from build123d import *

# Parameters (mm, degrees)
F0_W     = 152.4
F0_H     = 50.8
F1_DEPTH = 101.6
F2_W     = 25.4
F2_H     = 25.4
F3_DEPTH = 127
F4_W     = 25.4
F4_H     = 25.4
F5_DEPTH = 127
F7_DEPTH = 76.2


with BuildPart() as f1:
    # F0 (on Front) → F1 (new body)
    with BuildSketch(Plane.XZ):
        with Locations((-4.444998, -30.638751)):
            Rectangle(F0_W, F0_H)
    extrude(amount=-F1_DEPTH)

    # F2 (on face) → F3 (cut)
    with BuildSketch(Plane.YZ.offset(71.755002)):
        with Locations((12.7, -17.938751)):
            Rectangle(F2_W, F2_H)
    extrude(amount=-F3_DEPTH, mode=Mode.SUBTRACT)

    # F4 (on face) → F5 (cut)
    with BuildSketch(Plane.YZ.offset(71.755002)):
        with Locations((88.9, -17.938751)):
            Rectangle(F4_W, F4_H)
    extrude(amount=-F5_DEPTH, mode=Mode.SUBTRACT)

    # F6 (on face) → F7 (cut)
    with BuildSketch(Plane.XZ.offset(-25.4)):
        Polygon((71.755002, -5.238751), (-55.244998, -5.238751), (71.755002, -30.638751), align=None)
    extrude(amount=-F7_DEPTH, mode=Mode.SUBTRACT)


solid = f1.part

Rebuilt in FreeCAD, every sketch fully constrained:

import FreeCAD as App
import Part
import Sketcher
Q = App.Units.Quantity

doc = App.newDocument("Part")
body = doc.addObject("PartDesign::Body", "Body")

# Sketch on XZ plane
sketch1 = body.newObject("Sketcher::SketchObject", "Sketch")
sketch1.AttachmentSupport = (doc.getObject("XZ_Plane"), [""])
sketch1.MapMode = "FlatFace"
sketch1.addGeometry([
    Part.LineSegment(App.Vector(-81, -5, 0), App.Vector(-81, -56, 0)),
    Part.LineSegment(App.Vector(-81, -56, 0), App.Vector(72, -56, 0)),
    Part.LineSegment(App.Vector(72, -56, 0), App.Vector(72, -5, 0)),
    Part.LineSegment(App.Vector(72, -5, 0), App.Vector(-81, -5, 0)),
], False)
sketch1.addConstraint([
    Sketcher.Constraint("Coincident", 0, 2, 1, 1),
    Sketcher.Constraint("Coincident", 1, 2, 2, 1),
    Sketcher.Constraint("Coincident", 2, 2, 3, 1),
    Sketcher.Constraint("Coincident", 3, 2, 0, 1),
    Sketcher.Constraint("Vertical", 0),
    Sketcher.Constraint("Horizontal", 1),
    Sketcher.Constraint("Vertical", 2),
    Sketcher.Constraint("Horizontal", 3),
    Sketcher.Constraint("DistanceX", 1, 1, 1, 2, Q("6 in")),
    Sketcher.Constraint("DistanceY", 0, 2, 0, 1, Q("2 in")),
    Sketcher.Constraint("DistanceX", 0, 2, -1, 1, Q("3.1749999 in")),
    Sketcher.Constraint("DistanceY", 0, 2, -1, 1, 56.038751),
])
pad1 = body.newObject("PartDesign::Pad", "Pad")
pad1.Profile = sketch1
pad1.Length = Q("4 in")
pad1.Reversed = True

# Sketch on YZ plane
sketch2 = body.newObject("Sketcher::SketchObject", "Sketch001")
sketch2.AttachmentSupport = (doc.getObject("YZ_Plane"), [""])
sketch2.MapMode = "FlatFace"
sketch2.AttachmentOffset = App.Placement(App.Vector(0, 0, 2.8250001 * 25.4), App.Rotation())
sketch2.addGeometry([
    Part.LineSegment(App.Vector(0, -5, 0), App.Vector(0, -31, 0)),
    Part.LineSegment(App.Vector(0, -31, 0), App.Vector(25, -31, 0)),
    Part.LineSegment(App.Vector(25, -31, 0), App.Vector(25, -5, 0)),
    Part.LineSegment(App.Vector(25, -5, 0), App.Vector(0, -5, 0)),
], False)
sketch2.addConstraint([
    Sketcher.Constraint("Coincident", 0, 2, 1, 1),
    Sketcher.Constraint("Coincident", 1, 2, 2, 1),
    Sketcher.Constraint("Coincident", 2, 2, 3, 1),
    Sketcher.Constraint("Coincident", 3, 2, 0, 1),
    Sketcher.Constraint("Vertical", 0),
    Sketcher.Constraint("Horizontal", 1),
    Sketcher.Constraint("Vertical", 2),
    Sketcher.Constraint("Horizontal", 3),
    Sketcher.Constraint("PointOnObject", 0, 2, -2),
    Sketcher.Constraint("Equal", 3, 0),
    Sketcher.Constraint("DistanceX", 1, 1, 1, 2, Q("1 in")),
    Sketcher.Constraint("DistanceY", 0, 2, -1, 1, 30.638751),
])
pocket1 = body.newObject("PartDesign::Pocket", "Pocket")
pocket1.Profile = sketch2
pocket1.Length = Q("5 in")

# Sketch on YZ plane
sketch3 = body.newObject("Sketcher::SketchObject", "Sketch002")
sketch3.AttachmentSupport = (doc.getObject("YZ_Plane"), [""])
sketch3.MapMode = "FlatFace"
sketch3.AttachmentOffset = App.Placement(App.Vector(0, 0, 2.8250001 * 25.4), App.Rotation())
sketch3.addGeometry([
    Part.LineSegment(App.Vector(76, -5, 0), App.Vector(76, -31, 0)),
    Part.LineSegment(App.Vector(76, -31, 0), App.Vector(102, -31, 0)),
    Part.LineSegment(App.Vector(102, -31, 0), App.Vector(102, -5, 0)),
    Part.LineSegment(App.Vector(102, -5, 0), App.Vector(76, -5, 0)),
], False)
sketch3.addConstraint([
    Sketcher.Constraint("Coincident", 0, 2, 1, 1),
    Sketcher.Constraint("Coincident", 1, 2, 2, 1),
    Sketcher.Constraint("Coincident", 2, 2, 3, 1),
    Sketcher.Constraint("Coincident", 3, 2, 0, 1),
    Sketcher.Constraint("Vertical", 0),
    Sketcher.Constraint("Horizontal", 1),
    Sketcher.Constraint("Vertical", 2),
    Sketcher.Constraint("Horizontal", 3),
    Sketcher.Constraint("Equal", 3, 0),
    Sketcher.Constraint("DistanceX", 1, 1, 1, 2, Q("1 in")),
    Sketcher.Constraint("DistanceX", -1, 1, 0, 2, Q("3 in")),
    Sketcher.Constraint("DistanceY", 0, 2, -1, 1, 30.638751),
])
pocket2 = body.newObject("PartDesign::Pocket", "Pocket001")
pocket2.Profile = sketch3
pocket2.Length = Q("5 in")

# Sketch on XZ plane
sketch4 = body.newObject("Sketcher::SketchObject", "Sketch003")
sketch4.AttachmentSupport = (doc.getObject("XZ_Plane"), [""])
sketch4.MapMode = "FlatFace"
sketch4.AttachmentOffset = App.Placement(App.Vector(0, 0, -1 * 25.4), App.Rotation())
sketch4.addGeometry([
    Part.LineSegment(App.Vector(72, -5, 0), App.Vector(-55, -5, 0)),
    Part.LineSegment(App.Vector(-55, -5, 0), App.Vector(72, -31, 0)),
    Part.LineSegment(App.Vector(72, -31, 0), App.Vector(72, -5, 0)),
], False)
sketch4.addConstraint([
    Sketcher.Constraint("Coincident", 0, 2, 1, 1),
    Sketcher.Constraint("Coincident", 1, 2, 2, 1),
    Sketcher.Constraint("Coincident", 2, 2, 0, 1),
    Sketcher.Constraint("Horizontal", 0),
    Sketcher.Constraint("Vertical", 2),
    Sketcher.Constraint("DistanceX", 0, 2, 0, 1, Q("5 in")),
    Sketcher.Constraint("DistanceY", 2, 1, 2, 2, Q("1 in")),
    Sketcher.Constraint("DistanceX", 0, 2, -1, 1, Q("2.1749999 in")),
    Sketcher.Constraint("DistanceY", 0, 2, -1, 1, 5.238751),
])
pocket3 = body.newObject("PartDesign::Pocket", "Pocket002")
pocket3.Profile = sketch4
pocket3.Length = Q("3 in")

doc.recompute()
